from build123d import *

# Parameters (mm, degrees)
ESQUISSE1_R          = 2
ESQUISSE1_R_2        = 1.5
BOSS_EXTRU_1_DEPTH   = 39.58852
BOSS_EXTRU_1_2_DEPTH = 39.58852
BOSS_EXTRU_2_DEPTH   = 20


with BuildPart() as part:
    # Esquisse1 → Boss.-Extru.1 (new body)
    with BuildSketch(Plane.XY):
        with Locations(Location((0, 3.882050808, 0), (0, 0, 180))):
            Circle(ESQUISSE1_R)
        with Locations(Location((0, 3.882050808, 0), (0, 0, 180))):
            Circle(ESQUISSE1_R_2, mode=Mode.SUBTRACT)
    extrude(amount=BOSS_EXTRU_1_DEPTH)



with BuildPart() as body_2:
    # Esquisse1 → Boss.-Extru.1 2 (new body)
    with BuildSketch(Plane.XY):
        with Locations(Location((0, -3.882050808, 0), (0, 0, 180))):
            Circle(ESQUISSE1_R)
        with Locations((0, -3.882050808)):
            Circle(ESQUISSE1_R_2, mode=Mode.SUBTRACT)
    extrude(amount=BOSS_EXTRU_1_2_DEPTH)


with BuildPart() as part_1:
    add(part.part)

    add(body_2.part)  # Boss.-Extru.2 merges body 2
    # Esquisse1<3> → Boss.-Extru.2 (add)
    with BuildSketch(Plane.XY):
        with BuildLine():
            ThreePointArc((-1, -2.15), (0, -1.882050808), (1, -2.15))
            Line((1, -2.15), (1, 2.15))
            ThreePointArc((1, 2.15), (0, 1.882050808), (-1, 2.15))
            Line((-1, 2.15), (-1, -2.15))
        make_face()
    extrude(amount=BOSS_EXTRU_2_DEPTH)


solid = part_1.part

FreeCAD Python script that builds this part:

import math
import FreeCAD as App
import Part
import Sketcher

doc = App.newDocument("Part")
body = doc.addObject("PartDesign::Body", "Body")

# Sketch on XY plane
sketch1 = body.newObject("Sketcher::SketchObject", "Sketch")
sketch1.AttachmentSupport = (doc.getObject("XY_Plane"), [""])
sketch1.MapMode = "FlatFace"
sketch1.addGeometry([
    Part.Circle(App.Vector(0, 3.9, 0), App.Vector(0, 0, 1), 2),
    Part.Circle(App.Vector(0, 3.9, 0), App.Vector(0, 0, 1), 1.5),
], False)
sketch1.addConstraint([
    Sketcher.Constraint("Coincident", 1, 3, 0, 3),
    Sketcher.Constraint("PointOnObject", 0, 3, -2),
    Sketcher.Constraint("Diameter", 0, 4.0),
    Sketcher.Constraint("Diameter", 1, 3.0),
    Sketcher.Constraint("DistanceY", -1, 1, 0, 3, 3.882051),
])
pad1 = body.newObject("PartDesign::Pad", "Pad")
pad1.Profile = sketch1
pad1.Length = 39.58852
body2 = doc.addObject("PartDesign::Body", "Body001")

# Sketch on XY plane
sketch2 = body2.newObject("Sketcher::SketchObject", "Sketch001")
sketch2.AttachmentSupport = (doc.getObject("XY_Plane001"), [""])
sketch2.MapMode = "FlatFace"
sketch2.addGeometry([
    Part.Circle(App.Vector(0, -3.9, 0), App.Vector(0, 0, 1), 2),
    Part.Circle(App.Vector(0, -3.9, 0), App.Vector(0, 0, 1), 1.5),
], False)
sketch2.addConstraint([
    Sketcher.Constraint("Coincident", 1, 3, 0, 3),
    Sketcher.Constraint("PointOnObject", 0, 3, -2),
    Sketcher.Constraint("Diameter", 0, 4.0),
    Sketcher.Constraint("Diameter", 1, 3.0),
    Sketcher.Constraint("DistanceY", 0, 3, -1, 1, 3.882051),
])
pad2 = body2.newObject("PartDesign::Pad", "Pad001")
pad2.Profile = sketch2
pad2.Length = 39.58852
body.AllowCompound = True
doc.recompute()

boolean = body.newObject("PartDesign::Boolean", "Boolean")
boolean.Type = "Fuse"
boolean.addObjects([body2])

# Sketch on XY plane
sketch3 = body.newObject("Sketcher::SketchObject", "Sketch002")
sketch3.AttachmentSupport = (doc.getObject("XY_Plane"), [""])
sketch3.MapMode = "FlatFace"
sketch3.addGeometry([
    Part.ArcOfCircle(Part.Circle(App.Vector(0, -3.9, 0), App.Vector(0, 0, 1), 2), math.radians(60), math.radians(120)),
    Part.LineSegment(App.Vector(1, -2.1, 0), App.Vector(1, 2.1, 0)),
    Part.ArcOfCircle(Part.Circle(App.Vector(0, 3.9, 0), App.Vector(0, 0, 1), 2), math.radians(-120), math.radians(-60)),
    Part.LineSegment(App.Vector(-1, 2.1, 0), App.Vector(-1, -2.1, 0)),
], False)
sketch3.addConstraint([
    Sketcher.Constraint("Coincident", 0, 1, 1, 1),
    Sketcher.Constraint("Coincident", 1, 2, 2, 2),
    Sketcher.Constraint("Coincident", 2, 1, 3, 1),
    Sketcher.Constraint("Coincident", 3, 2, 0, 2),
    Sketcher.Constraint("Vertical", 1),
    Sketcher.Constraint("Vertical", 3),
    Sketcher.Constraint("Equal", 0, 2),
    Sketcher.Constraint("Symmetric", 0, 3, 2, 3, -1, 1),
    Sketcher.Constraint("Symmetric", 1, 2, 2, 1, -2),
    Sketcher.Constraint("Radius", 0, 2.0),
    Sketcher.Constraint("DistanceY", 1, 1, 1, 2, 4.3),
    Sketcher.Constraint("DistanceX", -1, 1, 0, 1, 1.0),
])
pad3 = body.newObject("PartDesign::Pad", "Pad002")
pad3.Profile = sketch3
pad3.Length = 20

doc.recompute()
